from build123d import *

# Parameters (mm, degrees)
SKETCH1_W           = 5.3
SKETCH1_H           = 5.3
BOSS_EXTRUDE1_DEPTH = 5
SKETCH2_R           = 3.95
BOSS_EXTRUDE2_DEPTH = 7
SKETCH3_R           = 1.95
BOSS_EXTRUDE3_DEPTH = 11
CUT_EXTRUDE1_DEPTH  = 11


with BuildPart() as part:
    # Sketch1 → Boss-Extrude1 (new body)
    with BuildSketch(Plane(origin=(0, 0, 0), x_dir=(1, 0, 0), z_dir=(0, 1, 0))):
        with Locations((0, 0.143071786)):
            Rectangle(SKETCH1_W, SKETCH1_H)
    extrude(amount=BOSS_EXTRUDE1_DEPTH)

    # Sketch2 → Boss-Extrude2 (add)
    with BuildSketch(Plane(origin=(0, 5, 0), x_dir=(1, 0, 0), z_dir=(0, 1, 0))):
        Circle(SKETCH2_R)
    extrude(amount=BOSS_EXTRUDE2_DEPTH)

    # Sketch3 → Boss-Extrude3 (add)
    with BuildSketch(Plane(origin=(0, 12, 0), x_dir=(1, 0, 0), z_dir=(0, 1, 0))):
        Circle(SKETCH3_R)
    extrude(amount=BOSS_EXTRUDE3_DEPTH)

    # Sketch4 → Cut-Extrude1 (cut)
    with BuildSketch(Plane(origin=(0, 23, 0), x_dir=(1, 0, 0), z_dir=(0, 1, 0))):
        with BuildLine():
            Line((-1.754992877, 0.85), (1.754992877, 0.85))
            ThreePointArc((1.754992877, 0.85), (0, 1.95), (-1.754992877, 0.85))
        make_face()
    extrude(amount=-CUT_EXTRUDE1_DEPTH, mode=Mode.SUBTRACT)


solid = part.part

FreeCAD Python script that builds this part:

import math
import FreeCAD as App
import Part
import Sketcher
from FreeCAD import Vector


def add_polygon(sketch, points):
    """Adds a closed chain of lines whose ends are joined by coincident constraints."""
    first, n = sketch.GeometryCount, len(points)
    for a, b in zip(points, points[1:] + points[:1]):
        sketch.addGeometry(Part.LineSegment(App.Vector(*a, 0), App.Vector(*b, 0)), False)
    for i in range(n):
        sketch.addConstraint(Sketcher.Constraint("Coincident", first + i, 2, first + (i + 1) % n, 1))

doc = App.newDocument("Part")
body = doc.addObject("PartDesign::Body", "Body")

sketch1 = doc.addObject("Sketcher::SketchObject", "Sketch")
body.addObject(sketch1)
sketch1.AttachmentSupport = (doc.XZ_Plane, [""])
sketch1.MapMode = "FlatFace"
add_polygon(sketch1, [(-3, -3), (-3, 3), (3, 3), (3, -3)])
sketch1.addConstraint(Sketcher.Constraint("Vertical", 0))
sketch1.addConstraint(Sketcher.Constraint("Horizontal", 1))
sketch1.addConstraint(Sketcher.Constraint("Vertical", 2))
sketch1.addConstraint(Sketcher.Constraint("Horizontal", 3))
sketch1.addConstraint(Sketcher.Constraint("Equal", 3, 0))
sketch1.addConstraint(Sketcher.Constraint("DistanceX", 1, 1, 1, 2, 5.3))
sketch1.addConstraint(Sketcher.Constraint("DistanceX", 0, 2, -1, 1, 2.65))
sketch1.addConstraint(Sketcher.Constraint("DistanceY", -1, 1, 0, 2, 2.506928))
pad1 = doc.addObject("PartDesign::Pad", "Pad")
body.addObject(pad1)
pad1.Profile = sketch1
pad1.Length = 5
pad1.Reversed = True

sketch2 = doc.addObject("Sketcher::SketchObject", "Sketch001")
body.addObject(sketch2)
sketch2.AttachmentSupport = (doc.XZ_Plane, [""])
sketch2.MapMode = "FlatFace"
sketch2.AttachmentOffset = App.Placement(Vector(0, 0, -5), App.Rotation())
sketch2.addGeometry(Part.Circle(Vector(0, 0, 0), Vector(0, 0, 1), 4), False)
sketch2.addConstraint(Sketcher.Constraint("Coincident", 0, 3, -1, 1))
sketch2.addConstraint(Sketcher.Constraint("Diameter", 0, 7.9))
pad2 = doc.addObject("PartDesign::Pad", "Pad001")
body.addObject(pad2)
pad2.Profile = sketch2
pad2.Length = 7
pad2.Reversed = True

sketch3 = doc.addObject("Sketcher::SketchObject", "Sketch002")
body.addObject(sketch3)
sketch3.AttachmentSupport = (doc.XZ_Plane, [""])
sketch3.MapMode = "FlatFace"
sketch3.AttachmentOffset = App.Placement(Vector(0, 0, -12), App.Rotation())
sketch3.addGeometry(Part.Circle(Vector(0, 0, 0), Vector(0, 0, 1), 1.9), False)
sketch3.addConstraint(Sketcher.Constraint("Coincident", 0, 3, -1, 1))
sketch3.addConstraint(Sketcher.Constraint("Diameter", 0, 3.9))
pad3 = doc.addObject("PartDesign::Pad", "Pad002")
body.addObject(pad3)
pad3.Profile = sketch3
pad3.Length = 11
pad3.Reversed = True

sketch4 = doc.addObject("Sketcher::SketchObject", "Sketch003")
body.addObject(sketch4)
sketch4.AttachmentSupport = (doc.XZ_Plane, [""])
sketch4.MapMode = "FlatFace"
sketch4.AttachmentOffset = App.Placement(Vector(0, 0, -23), App.Rotation())
sketch4.addGeometry(Part.LineSegment(Vector(-1.8, -0.8, 0), Vector(1.8, -0.8, 0)), False)
sketch4.addGeometry(Part.ArcOfCircle(Part.Circle(Vector(0, 0, 0), Vector(0, 0, 1), 1.9), math.radians(-154), math.radians(-26)), False)
sketch4.addConstraint(Sketcher.Constraint("Coincident", 0, 1, 1, 1))
sketch4.addConstraint(Sketcher.Constraint("Coincident", 1, 2, 0, 2))
sketch4.addConstraint(Sketcher.Constraint("Horizontal", 0))
sketch4.addConstraint(Sketcher.Constraint("Coincident", 1, 3, -1, 1))
sketch4.addConstraint(Sketcher.Constraint("Radius", 1, 1.95))
sketch4.addConstraint(Sketcher.Constraint("DistanceY", 0, 1, -1, 1, 0.85))
pocket1 = doc.addObject("PartDesign::Pocket", "Pocket")
body.addObject(pocket1)
pocket1.Profile = sketch4
pocket1.Length = 11
pocket1.Reversed = True

doc.recompute()
